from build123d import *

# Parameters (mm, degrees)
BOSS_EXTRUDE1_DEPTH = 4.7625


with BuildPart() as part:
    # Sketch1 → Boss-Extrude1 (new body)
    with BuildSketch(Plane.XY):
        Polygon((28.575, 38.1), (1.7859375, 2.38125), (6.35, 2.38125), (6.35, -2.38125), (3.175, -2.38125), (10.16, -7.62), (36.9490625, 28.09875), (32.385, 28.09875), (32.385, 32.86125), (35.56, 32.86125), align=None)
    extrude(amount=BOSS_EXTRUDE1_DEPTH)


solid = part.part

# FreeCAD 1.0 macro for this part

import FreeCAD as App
import Part
import Sketcher
from FreeCAD import Vector
Q = App.Units.Quantity


def add_polygon(sketch, points):
    """Adds a closed chain of lines whose ends are joined by coincident constraints."""
    first, n = sketch.GeometryCount, len(points)
    for a, b in zip(points, points[1:] + points[:1]):
        sketch.addGeometry(Part.LineSegment(App.Vector(*a, 0), App.Vector(*b, 0)), False)
    for i in range(n):
        sketch.addConstraint(Sketcher.Constraint("Coincident", first + i, 2, first + (i + 1) % n, 1))

doc = App.newDocument("Part")
params = doc.addObject("Spreadsheet::Sheet", "Params")
for row, (alias, value) in enumerate([
    ("sketch1_width", "0.125 in"),
    ("sketch1_height", "0.1875 in"),
    ("pad1_length", "0.1875 in"),
], start=1):
    params.set(f"A{row}", alias)
    params.set(f"B{row}", "=" + value)
    params.setAlias(f"B{row}", alias)

body = doc.addObject("PartDesign::Body", "Body")

sketch1 = body.newObject("Sketcher::SketchObject", "Sketch")
sketch1.AttachmentSupport = (doc.getObject("XY_Plane"), [""])
sketch1.MapMode = "FlatFace"
add_polygon(sketch1, [(28.6, 38.1), (1.8, 2.4), (6.3, 2.4), (6.3, -2.4), (3.2, -2.4), (10.2, -7.6), (36.9, 28.1), (32.4, 28.1), (32.4, 32.9), (35.6, 32.9)])
sketch1.addConstraint(Sketcher.Constraint("Horizontal", 1))
sketch1.addConstraint(Sketcher.Constraint("Vertical", 2))
sketch1.addConstraint(Sketcher.Constraint("Horizontal", 3))
sketch1.addConstraint(Sketcher.Constraint("Horizontal", 6))
sketch1.addConstraint(Sketcher.Constraint("Vertical", 7))
sketch1.addConstraint(Sketcher.Constraint("Horizontal", 8))
sketch1.addConstraint(Sketcher.Constraint("Perpendicular", 0, 4))
sketch1.addConstraint(Sketcher.Constraint("Perpendicular", 4, 5))
sketch1.addConstraint(Sketcher.Constraint("Perpendicular", 5, 9))
sketch1.addConstraint(Sketcher.Constraint("Equal", 1, 6))
sketch1.addConstraint(Sketcher.Constraint("Equal", 3, 8))
sketch1.addConstraint(Sketcher.Constraint("Equal", 2, 7))
sketch1.addConstraint(Sketcher.Constraint("DistanceX", -1, 1, 4, 2, Q("0.4 in")))
sketch1.addConstraint(Sketcher.Constraint("DistanceY", 4, 2, -1, 1, Q("0.3 in")))
sketch1.addConstraint(Sketcher.Constraint("DistanceX", -1, 1, 8, 2, Q("1.4 in")))
sketch1.addConstraint(Sketcher.Constraint("DistanceY", -1, 1, 9, 2, Q("1.5 in")))
sketch1.addConstraint(Sketcher.Constraint("DistanceY", 2, 2, 5, 2, Q("1.2 in")))
sketch1.addConstraint(Sketcher.Constraint("DistanceX", 3, 2, 3, 1, Q("0.125 in")))
sketch1.addConstraint(Sketcher.Constraint("DistanceY", 2, 2, 2, 1, Q("0.1875 in")))
sketch1.addConstraint(Sketcher.Constraint("DistanceX", -1, 1, 1, 2, Q("0.25 in")))
sketch1.setExpression("Constraints[27]", "Params.sketch1_width")
sketch1.setExpression("Constraints[28]", "Params.sketch1_height")
pad1 = body.newObject("PartDesign::Pad", "Pad")
pad1.Profile = sketch1
pad1.setExpression("Length", "Params.pad1_length")

doc.recompute()
